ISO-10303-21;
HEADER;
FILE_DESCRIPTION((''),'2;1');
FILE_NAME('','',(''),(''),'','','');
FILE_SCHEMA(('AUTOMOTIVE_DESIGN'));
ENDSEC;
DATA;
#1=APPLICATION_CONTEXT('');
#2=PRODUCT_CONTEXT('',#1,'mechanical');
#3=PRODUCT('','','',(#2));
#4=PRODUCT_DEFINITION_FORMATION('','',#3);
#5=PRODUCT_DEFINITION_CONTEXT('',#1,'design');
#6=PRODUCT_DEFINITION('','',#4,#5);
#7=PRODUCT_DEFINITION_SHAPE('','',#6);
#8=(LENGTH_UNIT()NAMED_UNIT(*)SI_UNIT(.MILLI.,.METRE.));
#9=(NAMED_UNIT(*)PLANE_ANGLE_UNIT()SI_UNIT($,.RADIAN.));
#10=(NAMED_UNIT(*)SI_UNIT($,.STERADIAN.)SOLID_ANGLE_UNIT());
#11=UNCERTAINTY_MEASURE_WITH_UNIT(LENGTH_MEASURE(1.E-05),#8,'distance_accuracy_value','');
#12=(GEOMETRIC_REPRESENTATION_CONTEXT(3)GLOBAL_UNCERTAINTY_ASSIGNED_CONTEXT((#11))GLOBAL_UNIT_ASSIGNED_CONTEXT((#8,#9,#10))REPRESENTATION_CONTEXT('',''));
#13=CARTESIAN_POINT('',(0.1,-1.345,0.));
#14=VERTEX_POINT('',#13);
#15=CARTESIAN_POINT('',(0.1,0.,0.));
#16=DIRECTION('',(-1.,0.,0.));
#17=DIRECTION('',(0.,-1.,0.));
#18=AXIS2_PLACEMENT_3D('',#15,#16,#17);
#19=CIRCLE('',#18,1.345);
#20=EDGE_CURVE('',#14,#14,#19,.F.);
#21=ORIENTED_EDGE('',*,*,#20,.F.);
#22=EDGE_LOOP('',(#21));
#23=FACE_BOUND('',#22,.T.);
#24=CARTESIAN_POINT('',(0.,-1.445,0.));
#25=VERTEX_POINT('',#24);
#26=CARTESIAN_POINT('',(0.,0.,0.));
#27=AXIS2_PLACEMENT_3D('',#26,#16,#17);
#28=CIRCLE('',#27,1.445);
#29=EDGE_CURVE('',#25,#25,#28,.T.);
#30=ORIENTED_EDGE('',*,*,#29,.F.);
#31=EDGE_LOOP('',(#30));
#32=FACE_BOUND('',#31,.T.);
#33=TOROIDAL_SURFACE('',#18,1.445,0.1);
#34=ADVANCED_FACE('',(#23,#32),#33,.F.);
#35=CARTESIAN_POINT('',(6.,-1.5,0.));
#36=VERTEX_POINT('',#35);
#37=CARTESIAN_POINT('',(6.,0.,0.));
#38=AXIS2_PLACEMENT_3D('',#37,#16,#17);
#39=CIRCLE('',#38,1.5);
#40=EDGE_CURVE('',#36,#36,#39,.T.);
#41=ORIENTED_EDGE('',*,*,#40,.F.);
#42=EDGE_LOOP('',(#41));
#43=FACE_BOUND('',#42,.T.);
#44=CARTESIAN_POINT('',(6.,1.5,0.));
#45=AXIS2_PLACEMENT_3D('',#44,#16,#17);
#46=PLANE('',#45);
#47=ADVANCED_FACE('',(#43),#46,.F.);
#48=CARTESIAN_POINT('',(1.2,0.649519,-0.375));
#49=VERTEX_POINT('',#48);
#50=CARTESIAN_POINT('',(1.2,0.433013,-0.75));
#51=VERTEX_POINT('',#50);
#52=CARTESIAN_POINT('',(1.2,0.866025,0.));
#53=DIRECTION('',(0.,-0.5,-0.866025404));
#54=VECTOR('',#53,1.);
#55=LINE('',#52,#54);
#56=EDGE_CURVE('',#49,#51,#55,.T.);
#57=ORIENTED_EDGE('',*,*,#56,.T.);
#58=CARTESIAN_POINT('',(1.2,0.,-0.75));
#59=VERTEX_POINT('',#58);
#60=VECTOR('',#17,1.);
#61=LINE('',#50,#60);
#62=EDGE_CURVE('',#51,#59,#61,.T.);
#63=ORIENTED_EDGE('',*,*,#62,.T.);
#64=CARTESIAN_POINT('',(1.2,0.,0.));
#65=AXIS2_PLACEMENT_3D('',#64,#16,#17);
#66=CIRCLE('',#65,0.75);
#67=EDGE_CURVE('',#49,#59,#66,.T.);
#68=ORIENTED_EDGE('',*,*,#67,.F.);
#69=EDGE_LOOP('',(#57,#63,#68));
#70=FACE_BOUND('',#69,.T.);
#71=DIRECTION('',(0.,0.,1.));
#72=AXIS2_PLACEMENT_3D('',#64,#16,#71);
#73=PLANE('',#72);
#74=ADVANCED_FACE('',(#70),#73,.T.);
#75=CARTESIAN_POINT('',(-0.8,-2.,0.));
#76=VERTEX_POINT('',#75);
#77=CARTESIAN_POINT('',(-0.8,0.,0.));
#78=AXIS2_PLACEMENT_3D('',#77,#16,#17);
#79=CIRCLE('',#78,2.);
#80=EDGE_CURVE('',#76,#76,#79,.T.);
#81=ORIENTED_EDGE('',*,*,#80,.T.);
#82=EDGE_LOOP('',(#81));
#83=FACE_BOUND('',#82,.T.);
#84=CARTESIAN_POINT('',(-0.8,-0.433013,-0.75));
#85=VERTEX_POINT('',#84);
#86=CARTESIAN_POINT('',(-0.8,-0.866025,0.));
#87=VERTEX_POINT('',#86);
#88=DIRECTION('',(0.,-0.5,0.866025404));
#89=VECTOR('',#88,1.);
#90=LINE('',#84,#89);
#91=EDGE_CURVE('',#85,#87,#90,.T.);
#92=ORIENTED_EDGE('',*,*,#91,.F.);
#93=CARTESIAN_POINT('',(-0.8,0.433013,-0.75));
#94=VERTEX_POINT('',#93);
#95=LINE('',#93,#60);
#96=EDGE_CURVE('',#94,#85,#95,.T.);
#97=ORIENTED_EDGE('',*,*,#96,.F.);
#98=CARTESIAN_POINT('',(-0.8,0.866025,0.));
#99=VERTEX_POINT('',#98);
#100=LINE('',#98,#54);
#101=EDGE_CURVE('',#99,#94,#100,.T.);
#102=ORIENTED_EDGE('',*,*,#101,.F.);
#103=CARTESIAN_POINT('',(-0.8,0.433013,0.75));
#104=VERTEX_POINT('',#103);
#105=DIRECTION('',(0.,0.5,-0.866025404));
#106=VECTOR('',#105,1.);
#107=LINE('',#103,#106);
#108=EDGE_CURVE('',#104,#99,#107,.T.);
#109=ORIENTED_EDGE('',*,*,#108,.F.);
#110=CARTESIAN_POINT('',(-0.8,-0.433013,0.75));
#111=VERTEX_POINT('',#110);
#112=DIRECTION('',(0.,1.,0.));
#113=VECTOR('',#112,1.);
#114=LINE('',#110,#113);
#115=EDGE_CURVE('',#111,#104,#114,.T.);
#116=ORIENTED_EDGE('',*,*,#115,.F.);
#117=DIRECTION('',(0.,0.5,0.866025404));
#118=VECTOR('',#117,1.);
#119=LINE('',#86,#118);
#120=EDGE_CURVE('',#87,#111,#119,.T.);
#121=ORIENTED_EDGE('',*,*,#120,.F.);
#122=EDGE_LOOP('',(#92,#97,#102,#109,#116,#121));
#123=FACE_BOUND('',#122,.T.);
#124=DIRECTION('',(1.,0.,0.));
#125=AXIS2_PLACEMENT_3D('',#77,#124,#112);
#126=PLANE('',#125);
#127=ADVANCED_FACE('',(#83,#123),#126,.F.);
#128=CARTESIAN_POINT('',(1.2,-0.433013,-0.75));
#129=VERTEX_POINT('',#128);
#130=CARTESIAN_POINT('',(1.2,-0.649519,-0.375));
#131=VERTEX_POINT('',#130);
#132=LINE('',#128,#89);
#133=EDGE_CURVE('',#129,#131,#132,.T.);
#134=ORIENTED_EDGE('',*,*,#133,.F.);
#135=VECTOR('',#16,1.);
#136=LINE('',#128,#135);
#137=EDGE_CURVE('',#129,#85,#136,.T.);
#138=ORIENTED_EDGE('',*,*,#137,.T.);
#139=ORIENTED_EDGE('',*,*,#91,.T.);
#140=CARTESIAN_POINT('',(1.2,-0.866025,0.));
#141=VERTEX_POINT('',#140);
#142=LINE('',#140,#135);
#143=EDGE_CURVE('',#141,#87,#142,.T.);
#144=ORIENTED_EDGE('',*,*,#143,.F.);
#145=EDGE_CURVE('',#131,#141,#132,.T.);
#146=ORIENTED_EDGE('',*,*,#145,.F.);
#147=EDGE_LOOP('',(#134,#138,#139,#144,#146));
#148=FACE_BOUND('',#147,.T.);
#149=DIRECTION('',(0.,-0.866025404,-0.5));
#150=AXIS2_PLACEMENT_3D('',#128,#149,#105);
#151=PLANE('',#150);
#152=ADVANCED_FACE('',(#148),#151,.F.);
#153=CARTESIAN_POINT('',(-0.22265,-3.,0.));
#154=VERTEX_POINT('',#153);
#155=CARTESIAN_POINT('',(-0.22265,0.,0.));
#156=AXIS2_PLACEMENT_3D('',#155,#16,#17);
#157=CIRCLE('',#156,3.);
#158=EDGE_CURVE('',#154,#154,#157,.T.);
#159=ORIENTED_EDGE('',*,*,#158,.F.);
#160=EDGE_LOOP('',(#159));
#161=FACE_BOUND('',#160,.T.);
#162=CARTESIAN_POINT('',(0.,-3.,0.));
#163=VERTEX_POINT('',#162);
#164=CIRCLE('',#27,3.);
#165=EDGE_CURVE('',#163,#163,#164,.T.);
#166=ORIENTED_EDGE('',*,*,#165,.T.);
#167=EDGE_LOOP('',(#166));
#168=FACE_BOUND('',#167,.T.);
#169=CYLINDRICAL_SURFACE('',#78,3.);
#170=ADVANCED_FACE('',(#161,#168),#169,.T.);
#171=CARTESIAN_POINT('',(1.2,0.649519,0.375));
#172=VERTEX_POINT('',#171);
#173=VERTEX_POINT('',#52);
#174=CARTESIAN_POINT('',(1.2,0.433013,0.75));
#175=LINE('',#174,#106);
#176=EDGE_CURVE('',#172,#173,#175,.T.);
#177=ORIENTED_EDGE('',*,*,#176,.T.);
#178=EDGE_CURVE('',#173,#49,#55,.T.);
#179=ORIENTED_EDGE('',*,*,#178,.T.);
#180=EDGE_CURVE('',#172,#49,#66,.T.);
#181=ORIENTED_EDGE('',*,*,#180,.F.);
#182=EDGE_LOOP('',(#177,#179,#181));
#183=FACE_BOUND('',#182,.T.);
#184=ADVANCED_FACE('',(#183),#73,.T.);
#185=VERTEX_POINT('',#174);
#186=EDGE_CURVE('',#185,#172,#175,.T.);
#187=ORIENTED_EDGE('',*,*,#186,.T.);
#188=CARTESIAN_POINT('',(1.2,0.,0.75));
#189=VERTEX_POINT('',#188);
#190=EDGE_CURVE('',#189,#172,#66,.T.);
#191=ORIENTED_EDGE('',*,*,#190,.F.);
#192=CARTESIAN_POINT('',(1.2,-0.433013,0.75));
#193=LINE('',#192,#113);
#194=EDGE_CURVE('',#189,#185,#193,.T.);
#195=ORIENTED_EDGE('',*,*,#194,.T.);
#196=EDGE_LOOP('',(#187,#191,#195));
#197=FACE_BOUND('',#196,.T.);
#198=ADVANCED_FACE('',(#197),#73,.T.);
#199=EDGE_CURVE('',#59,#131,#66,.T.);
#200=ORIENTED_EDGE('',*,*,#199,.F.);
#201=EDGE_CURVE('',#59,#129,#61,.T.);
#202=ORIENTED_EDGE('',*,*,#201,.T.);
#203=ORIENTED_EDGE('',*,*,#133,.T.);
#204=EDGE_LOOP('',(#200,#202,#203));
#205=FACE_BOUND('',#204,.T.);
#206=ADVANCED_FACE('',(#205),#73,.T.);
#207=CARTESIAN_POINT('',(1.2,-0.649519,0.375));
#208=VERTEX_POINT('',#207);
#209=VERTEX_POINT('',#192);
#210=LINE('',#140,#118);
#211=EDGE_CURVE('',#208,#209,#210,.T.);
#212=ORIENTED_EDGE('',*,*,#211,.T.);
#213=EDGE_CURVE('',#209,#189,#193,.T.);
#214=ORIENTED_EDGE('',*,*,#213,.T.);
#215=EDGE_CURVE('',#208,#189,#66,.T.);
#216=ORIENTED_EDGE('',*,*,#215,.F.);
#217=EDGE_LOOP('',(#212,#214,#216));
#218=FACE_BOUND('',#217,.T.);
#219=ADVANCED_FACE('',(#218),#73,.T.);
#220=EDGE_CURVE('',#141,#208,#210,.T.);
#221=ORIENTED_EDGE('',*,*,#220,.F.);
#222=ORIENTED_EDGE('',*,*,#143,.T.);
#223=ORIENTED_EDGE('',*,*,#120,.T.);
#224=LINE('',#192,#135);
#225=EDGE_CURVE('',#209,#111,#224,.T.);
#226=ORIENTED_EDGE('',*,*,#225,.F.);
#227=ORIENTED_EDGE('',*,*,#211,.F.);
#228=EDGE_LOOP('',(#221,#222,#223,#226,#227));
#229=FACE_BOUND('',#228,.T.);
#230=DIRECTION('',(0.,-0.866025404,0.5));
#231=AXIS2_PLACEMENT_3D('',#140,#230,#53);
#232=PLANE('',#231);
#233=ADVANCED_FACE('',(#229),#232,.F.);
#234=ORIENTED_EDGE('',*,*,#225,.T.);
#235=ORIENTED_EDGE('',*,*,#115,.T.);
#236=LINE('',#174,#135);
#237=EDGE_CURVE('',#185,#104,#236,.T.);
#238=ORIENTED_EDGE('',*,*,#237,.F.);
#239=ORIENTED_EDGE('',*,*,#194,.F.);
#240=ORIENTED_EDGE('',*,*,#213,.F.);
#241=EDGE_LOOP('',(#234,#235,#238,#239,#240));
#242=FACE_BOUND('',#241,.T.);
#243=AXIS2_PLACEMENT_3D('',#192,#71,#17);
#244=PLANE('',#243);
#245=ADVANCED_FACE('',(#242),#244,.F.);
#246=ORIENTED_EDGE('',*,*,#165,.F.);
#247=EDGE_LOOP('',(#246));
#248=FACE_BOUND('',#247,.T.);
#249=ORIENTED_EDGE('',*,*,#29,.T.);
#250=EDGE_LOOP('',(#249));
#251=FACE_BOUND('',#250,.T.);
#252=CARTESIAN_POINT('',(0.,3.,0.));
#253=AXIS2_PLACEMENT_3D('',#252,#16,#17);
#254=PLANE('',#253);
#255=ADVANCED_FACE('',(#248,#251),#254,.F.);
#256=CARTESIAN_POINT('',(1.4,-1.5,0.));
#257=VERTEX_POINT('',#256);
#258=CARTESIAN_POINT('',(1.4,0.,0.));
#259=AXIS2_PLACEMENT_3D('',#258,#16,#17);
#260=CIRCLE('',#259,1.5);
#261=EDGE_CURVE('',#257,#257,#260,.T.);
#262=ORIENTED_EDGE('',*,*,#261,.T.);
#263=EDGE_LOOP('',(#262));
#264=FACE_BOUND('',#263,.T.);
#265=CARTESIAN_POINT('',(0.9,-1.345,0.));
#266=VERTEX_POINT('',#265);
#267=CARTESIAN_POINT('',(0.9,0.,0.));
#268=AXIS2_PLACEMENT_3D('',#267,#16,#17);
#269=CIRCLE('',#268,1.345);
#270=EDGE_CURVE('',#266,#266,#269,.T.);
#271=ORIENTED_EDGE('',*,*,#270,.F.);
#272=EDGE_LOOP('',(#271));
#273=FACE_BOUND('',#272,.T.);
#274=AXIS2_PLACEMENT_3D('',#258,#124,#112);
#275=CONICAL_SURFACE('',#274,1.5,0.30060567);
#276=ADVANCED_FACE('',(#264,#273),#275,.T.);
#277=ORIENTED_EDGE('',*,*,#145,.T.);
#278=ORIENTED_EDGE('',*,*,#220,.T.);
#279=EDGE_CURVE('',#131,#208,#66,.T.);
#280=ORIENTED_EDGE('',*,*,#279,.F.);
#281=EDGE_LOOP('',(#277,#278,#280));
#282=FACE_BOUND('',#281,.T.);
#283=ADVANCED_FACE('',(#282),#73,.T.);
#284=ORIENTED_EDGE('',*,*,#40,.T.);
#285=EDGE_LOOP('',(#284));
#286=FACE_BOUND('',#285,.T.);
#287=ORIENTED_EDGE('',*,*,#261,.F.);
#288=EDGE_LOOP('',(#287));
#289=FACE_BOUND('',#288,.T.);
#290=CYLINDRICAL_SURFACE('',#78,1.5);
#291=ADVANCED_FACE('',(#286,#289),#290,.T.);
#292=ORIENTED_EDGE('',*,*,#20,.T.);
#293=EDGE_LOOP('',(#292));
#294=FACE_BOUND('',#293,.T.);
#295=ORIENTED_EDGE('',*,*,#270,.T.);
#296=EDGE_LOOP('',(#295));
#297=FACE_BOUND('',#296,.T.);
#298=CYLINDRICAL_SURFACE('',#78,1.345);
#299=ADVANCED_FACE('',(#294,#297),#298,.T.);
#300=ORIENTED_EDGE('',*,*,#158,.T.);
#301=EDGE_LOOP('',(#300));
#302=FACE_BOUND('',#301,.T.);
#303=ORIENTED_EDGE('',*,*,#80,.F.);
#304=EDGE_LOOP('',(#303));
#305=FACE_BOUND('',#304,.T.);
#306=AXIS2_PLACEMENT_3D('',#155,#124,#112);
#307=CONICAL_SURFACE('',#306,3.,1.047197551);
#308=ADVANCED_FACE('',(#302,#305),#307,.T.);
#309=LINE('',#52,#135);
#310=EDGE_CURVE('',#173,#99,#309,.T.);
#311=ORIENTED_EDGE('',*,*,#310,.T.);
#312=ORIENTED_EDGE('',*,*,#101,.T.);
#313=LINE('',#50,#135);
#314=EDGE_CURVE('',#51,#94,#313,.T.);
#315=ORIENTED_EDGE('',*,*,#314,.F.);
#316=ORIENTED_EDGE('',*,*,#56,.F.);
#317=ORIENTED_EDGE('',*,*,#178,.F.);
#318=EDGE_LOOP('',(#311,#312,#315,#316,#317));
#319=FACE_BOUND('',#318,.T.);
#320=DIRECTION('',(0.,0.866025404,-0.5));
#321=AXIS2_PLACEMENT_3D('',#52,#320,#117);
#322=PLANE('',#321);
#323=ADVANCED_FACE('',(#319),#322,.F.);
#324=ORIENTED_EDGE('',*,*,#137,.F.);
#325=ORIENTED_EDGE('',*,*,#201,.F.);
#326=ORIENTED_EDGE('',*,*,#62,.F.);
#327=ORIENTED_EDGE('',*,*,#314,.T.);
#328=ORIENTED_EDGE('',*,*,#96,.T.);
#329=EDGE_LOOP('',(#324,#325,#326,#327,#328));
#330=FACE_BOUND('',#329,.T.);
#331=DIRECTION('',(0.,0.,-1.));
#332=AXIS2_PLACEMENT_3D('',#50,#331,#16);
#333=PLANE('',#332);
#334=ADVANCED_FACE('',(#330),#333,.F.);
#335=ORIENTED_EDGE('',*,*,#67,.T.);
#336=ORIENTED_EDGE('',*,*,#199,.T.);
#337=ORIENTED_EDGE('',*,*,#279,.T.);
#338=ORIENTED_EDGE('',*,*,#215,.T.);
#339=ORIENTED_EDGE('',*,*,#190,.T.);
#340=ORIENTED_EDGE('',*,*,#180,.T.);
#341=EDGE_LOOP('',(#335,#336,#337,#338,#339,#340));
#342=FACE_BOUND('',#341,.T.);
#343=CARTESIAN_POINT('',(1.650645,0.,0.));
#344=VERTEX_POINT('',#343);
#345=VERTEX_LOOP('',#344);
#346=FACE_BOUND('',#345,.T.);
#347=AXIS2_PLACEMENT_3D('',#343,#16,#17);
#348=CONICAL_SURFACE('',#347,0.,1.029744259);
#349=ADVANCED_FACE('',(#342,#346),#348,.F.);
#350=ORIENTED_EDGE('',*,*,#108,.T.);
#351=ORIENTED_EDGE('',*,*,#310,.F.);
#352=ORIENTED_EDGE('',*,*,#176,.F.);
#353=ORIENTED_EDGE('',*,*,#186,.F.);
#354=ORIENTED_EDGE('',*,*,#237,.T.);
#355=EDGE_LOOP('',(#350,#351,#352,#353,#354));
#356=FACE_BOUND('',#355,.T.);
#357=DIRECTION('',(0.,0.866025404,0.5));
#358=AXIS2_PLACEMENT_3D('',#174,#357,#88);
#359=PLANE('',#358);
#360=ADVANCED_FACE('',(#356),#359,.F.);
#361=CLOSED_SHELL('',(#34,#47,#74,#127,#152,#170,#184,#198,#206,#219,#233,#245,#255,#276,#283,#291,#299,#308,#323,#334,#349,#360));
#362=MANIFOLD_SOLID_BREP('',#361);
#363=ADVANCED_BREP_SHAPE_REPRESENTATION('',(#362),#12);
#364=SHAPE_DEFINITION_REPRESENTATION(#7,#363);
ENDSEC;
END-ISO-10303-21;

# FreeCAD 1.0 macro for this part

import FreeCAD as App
import Part
import Sketcher

V = App.Vector
Q = App.Units.Quantity


def edges_at(feature, points):
    """Names of the edges that pass closest to the given points."""
    edges = feature.Shape.Edges
    near = lambda p: min(range(len(edges)), key=lambda i: edges[i].distToShape(Part.Vertex(*p))[0])
    return sorted({f"Edge{near(p) + 1}" for p in points})

doc = App.newDocument("Part")
body = doc.addObject("PartDesign::Body", "Body")

# Sketch on XY plane
sketch1 = doc.addObject("Sketcher::SketchObject", "Sketch")
body.addObject(sketch1)
sketch1.AttachmentSupport = (doc.XY_Plane, [""])
sketch1.MapMode = "FlatFace"
sketch1.addGeometry(Part.LineSegment(V(-0.8, 2, 0), V(-0.8, 0, 0)), False)
sketch1.addGeometry(Part.LineSegment(V(-0.8, 0, 0), V(6, 0, 0)), False)
sketch1.addGeometry(Part.LineSegment(V(6, 0, 0), V(6, 1.5, 0)), False)
sketch1.addGeometry(Part.LineSegment(V(6, 1.5, 0), V(1.4, 1.5, 0)), False)
sketch1.addGeometry(Part.LineSegment(V(1.4, 1.5, 0), V(0.9, 1.34, 0)), False)
sketch1.addGeometry(Part.LineSegment(V(0.9, 1.34, 0), V(0, 1.34, 0)), False)
sketch1.addGeometry(Part.LineSegment(V(0, 1.34, 0), V(0, 3, 0)), False)
sketch1.addGeometry(Part.LineSegment(V(0, 3, 0), V(-0.22, 3, 0)), False)
sketch1.addGeometry(Part.LineSegment(V(-0.22, 3, 0), V(-0.8, 2, 0)), False)
sketch1.addConstraint(Sketcher.Constraint("Coincident", 0, 2, 1, 1))
sketch1.addConstraint(Sketcher.Constraint("Coincident", 1, 2, 2, 1))
sketch1.addConstraint(Sketcher.Constraint("Coincident", 2, 2, 3, 1))
sketch1.addConstraint(Sketcher.Constraint("Coincident", 3, 2, 4, 1))
sketch1.addConstraint(Sketcher.Constraint("Coincident", 4, 2, 5, 1))
sketch1.addConstraint(Sketcher.Constraint("Coincident", 5, 2, 6, 1))
sketch1.addConstraint(Sketcher.Constraint("Coincident", 6, 2, 7, 1))
sketch1.addConstraint(Sketcher.Constraint("Coincident", 7, 2, 8, 1))
sketch1.addConstraint(Sketcher.Constraint("Coincident", 8, 2, 0, 1))
sketch1.addConstraint(Sketcher.Constraint("Vertical", 0))
sketch1.addConstraint(Sketcher.Constraint("Horizontal", 1))
sketch1.addConstraint(Sketcher.Constraint("Vertical", 2))
sketch1.addConstraint(Sketcher.Constraint("Horizontal", 3))
sketch1.addConstraint(Sketcher.Constraint("Horizontal", 5))
sketch1.addConstraint(Sketcher.Constraint("Vertical", 6))
sketch1.addConstraint(Sketcher.Constraint("Horizontal", 7))
sketch1.addConstraint(Sketcher.Constraint("PointOnObject", 0, 2, -1))
sketch1.addConstraint(Sketcher.Constraint("PointOnObject", 5, 2, -2))
sketch1.addConstraint(Sketcher.Constraint("DistanceY", 0, 2, 0, 1, 2.0))
sketch1.addConstraint(Sketcher.Constraint("Angle", 8, Q("-120 deg")))
sketch1.addConstraint(Sketcher.Constraint("DistanceX", 1, 1, 1, 2, 6.8))
sketch1.addConstraint(Sketcher.Constraint("DistanceX", 3, 2, 3, 1, 4.6))
sketch1.addConstraint(Sketcher.Constraint("DistanceX", 5, 2, 5, 1, 0.9))
sketch1.addConstraint(Sketcher.Constraint("DistanceY", 2, 1, 2, 2, 1.5))
sketch1.addConstraint(Sketcher.Constraint("DistanceX", -1, 1, 1, 2, 6.0))
sketch1.addConstraint(Sketcher.Constraint("DistanceY", -1, 1, 6, 2, 3.0))
sketch1.addConstraint(Sketcher.Constraint("DistanceY", 6, 1, 6, 2, 1.655))
revolution = doc.addObject("PartDesign::Revolution", "Revolution")
body.addObject(revolution)
revolution.Profile = sketch1
revolution.ReferenceAxis = (sketch1, ["H_Axis"])
revolution.Angle = 360
doc.recompute()

fillet = doc.addObject("PartDesign::Fillet", "Fillet")
body.addObject(fillet)
fillet.Base = (revolution, edges_at(revolution, [(0, 1.345, 0)]))
fillet.Radius = 0.1

# Sketch on YZ plane
sketch2 = doc.addObject("Sketcher::SketchObject", "Sketch001")
body.addObject(sketch2)
sketch2.AttachmentSupport = (doc.YZ_Plane, [""])
sketch2.MapMode = "FlatFace"
sketch2.AttachmentOffset = App.Placement(V(0, 0, -0.8), App.Rotation())
sketch2.addGeometry(Part.LineSegment(V(0.9, 0, 0), V(0.4, -0.8, 0)), False)
sketch2.addGeometry(Part.LineSegment(V(0.4, -0.8, 0), V(-0.4, -0.8, 0)), False)
sketch2.addGeometry(Part.LineSegment(V(-0.4, -0.8, 0), V(-0.9, 0, 0)), False)
sketch2.addGeometry(Part.LineSegment(V(-0.9, 0, 0), V(-0.4, 0.8, 0)), False)
sketch2.addGeometry(Part.LineSegment(V(-0.4, 0.8, 0), V(0.4, 0.8, 0)), False)
sketch2.addGeometry(Part.LineSegment(V(0.4, 0.8, 0), V(0.9, 0, 0)), False)
sketch2.addConstraint(Sketcher.Constraint("Coincident", 0, 2, 1, 1))
sketch2.addConstraint(Sketcher.Constraint("Coincident", 1, 2, 2, 1))
sketch2.addConstraint(Sketcher.Constraint("Coincident", 2, 2, 3, 1))
sketch2.addConstraint(Sketcher.Constraint("Coincident", 3, 2, 4, 1))
sketch2.addConstraint(Sketcher.Constraint("Coincident", 4, 2, 5, 1))
sketch2.addConstraint(Sketcher.Constraint("Coincident", 5, 2, 0, 1))
sketch2.addConstraint(Sketcher.Constraint("Horizontal", 1))
sketch2.addConstraint(Sketcher.Constraint("Horizontal", 4))
sketch2.addConstraint(Sketcher.Constraint("Symmetric", 0, 2, 3, 2, -1, 1))
sketch2.addConstraint(Sketcher.Constraint("Symmetric", 2, 2, 5, 2, -1, 1))
sketch2.addConstraint(Sketcher.Constraint("PointOnObject", 2, 2, -1))
sketch2.addConstraint(Sketcher.Constraint("Parallel", 2, 5))
sketch2.addConstraint(Sketcher.Constraint("Vertical", 1, 2, 3, 2))
sketch2.addConstraint(Sketcher.Constraint("Angle", 0, Q("-120 deg")))
sketch2.addConstraint(Sketcher.Constraint("DistanceY", 1, 2, 3, 2, 1.5))
sketch2.addConstraint(Sketcher.Constraint("DistanceX", 1, 2, 1, 1, 0.866025))
pocket1 = doc.addObject("PartDesign::Pocket", "Pocket")
body.addObject(pocket1)
pocket1.Profile = sketch2
pocket1.Length = 2
pocket1.Reversed = True

# Sketch on XY plane
sketch3 = doc.addObject("Sketcher::SketchObject", "Sketch002")
body.addObject(sketch3)
sketch3.AttachmentSupport = (doc.XY_Plane, [""])
sketch3.MapMode = "FlatFace"
sketch3.addGeometry(Part.LineSegment(V(1.2, 0.75, 0), V(1.2, 0, 0)), False)
sketch3.addGeometry(Part.LineSegment(V(1.2, 0, 0), V(1.65, 0, 0)), False)
sketch3.addGeometry(Part.LineSegment(V(1.65, 0, 0), V(1.2, 0.75, 0)), False)
sketch3.addConstraint(Sketcher.Constraint("Coincident", 0, 2, 1, 1))
sketch3.addConstraint(Sketcher.Constraint("Coincident", 1, 2, 2, 1))
sketch3.addConstraint(Sketcher.Constraint("Coincident", 2, 2, 0, 1))
sketch3.addConstraint(Sketcher.Constraint("Vertical", 0))
sketch3.addConstraint(Sketcher.Constraint("Horizontal", 1))
sketch3.addConstraint(Sketcher.Constraint("PointOnObject", 0, 2, -1))
sketch3.addConstraint(Sketcher.Constraint("Angle", 2, Q("121 deg")))
sketch3.addConstraint(Sketcher.Constraint("DistanceY", 0, 2, 0, 1, 0.75))
sketch3.addConstraint(Sketcher.Constraint("DistanceX", -1, 1, 0, 2, 1.2))
groove = doc.addObject("PartDesign::Groove", "Groove")
body.addObject(groove)
groove.Profile = sketch3
groove.ReferenceAxis = (sketch3, ["H_Axis"])
groove.Angle = 360

doc.recompute()
